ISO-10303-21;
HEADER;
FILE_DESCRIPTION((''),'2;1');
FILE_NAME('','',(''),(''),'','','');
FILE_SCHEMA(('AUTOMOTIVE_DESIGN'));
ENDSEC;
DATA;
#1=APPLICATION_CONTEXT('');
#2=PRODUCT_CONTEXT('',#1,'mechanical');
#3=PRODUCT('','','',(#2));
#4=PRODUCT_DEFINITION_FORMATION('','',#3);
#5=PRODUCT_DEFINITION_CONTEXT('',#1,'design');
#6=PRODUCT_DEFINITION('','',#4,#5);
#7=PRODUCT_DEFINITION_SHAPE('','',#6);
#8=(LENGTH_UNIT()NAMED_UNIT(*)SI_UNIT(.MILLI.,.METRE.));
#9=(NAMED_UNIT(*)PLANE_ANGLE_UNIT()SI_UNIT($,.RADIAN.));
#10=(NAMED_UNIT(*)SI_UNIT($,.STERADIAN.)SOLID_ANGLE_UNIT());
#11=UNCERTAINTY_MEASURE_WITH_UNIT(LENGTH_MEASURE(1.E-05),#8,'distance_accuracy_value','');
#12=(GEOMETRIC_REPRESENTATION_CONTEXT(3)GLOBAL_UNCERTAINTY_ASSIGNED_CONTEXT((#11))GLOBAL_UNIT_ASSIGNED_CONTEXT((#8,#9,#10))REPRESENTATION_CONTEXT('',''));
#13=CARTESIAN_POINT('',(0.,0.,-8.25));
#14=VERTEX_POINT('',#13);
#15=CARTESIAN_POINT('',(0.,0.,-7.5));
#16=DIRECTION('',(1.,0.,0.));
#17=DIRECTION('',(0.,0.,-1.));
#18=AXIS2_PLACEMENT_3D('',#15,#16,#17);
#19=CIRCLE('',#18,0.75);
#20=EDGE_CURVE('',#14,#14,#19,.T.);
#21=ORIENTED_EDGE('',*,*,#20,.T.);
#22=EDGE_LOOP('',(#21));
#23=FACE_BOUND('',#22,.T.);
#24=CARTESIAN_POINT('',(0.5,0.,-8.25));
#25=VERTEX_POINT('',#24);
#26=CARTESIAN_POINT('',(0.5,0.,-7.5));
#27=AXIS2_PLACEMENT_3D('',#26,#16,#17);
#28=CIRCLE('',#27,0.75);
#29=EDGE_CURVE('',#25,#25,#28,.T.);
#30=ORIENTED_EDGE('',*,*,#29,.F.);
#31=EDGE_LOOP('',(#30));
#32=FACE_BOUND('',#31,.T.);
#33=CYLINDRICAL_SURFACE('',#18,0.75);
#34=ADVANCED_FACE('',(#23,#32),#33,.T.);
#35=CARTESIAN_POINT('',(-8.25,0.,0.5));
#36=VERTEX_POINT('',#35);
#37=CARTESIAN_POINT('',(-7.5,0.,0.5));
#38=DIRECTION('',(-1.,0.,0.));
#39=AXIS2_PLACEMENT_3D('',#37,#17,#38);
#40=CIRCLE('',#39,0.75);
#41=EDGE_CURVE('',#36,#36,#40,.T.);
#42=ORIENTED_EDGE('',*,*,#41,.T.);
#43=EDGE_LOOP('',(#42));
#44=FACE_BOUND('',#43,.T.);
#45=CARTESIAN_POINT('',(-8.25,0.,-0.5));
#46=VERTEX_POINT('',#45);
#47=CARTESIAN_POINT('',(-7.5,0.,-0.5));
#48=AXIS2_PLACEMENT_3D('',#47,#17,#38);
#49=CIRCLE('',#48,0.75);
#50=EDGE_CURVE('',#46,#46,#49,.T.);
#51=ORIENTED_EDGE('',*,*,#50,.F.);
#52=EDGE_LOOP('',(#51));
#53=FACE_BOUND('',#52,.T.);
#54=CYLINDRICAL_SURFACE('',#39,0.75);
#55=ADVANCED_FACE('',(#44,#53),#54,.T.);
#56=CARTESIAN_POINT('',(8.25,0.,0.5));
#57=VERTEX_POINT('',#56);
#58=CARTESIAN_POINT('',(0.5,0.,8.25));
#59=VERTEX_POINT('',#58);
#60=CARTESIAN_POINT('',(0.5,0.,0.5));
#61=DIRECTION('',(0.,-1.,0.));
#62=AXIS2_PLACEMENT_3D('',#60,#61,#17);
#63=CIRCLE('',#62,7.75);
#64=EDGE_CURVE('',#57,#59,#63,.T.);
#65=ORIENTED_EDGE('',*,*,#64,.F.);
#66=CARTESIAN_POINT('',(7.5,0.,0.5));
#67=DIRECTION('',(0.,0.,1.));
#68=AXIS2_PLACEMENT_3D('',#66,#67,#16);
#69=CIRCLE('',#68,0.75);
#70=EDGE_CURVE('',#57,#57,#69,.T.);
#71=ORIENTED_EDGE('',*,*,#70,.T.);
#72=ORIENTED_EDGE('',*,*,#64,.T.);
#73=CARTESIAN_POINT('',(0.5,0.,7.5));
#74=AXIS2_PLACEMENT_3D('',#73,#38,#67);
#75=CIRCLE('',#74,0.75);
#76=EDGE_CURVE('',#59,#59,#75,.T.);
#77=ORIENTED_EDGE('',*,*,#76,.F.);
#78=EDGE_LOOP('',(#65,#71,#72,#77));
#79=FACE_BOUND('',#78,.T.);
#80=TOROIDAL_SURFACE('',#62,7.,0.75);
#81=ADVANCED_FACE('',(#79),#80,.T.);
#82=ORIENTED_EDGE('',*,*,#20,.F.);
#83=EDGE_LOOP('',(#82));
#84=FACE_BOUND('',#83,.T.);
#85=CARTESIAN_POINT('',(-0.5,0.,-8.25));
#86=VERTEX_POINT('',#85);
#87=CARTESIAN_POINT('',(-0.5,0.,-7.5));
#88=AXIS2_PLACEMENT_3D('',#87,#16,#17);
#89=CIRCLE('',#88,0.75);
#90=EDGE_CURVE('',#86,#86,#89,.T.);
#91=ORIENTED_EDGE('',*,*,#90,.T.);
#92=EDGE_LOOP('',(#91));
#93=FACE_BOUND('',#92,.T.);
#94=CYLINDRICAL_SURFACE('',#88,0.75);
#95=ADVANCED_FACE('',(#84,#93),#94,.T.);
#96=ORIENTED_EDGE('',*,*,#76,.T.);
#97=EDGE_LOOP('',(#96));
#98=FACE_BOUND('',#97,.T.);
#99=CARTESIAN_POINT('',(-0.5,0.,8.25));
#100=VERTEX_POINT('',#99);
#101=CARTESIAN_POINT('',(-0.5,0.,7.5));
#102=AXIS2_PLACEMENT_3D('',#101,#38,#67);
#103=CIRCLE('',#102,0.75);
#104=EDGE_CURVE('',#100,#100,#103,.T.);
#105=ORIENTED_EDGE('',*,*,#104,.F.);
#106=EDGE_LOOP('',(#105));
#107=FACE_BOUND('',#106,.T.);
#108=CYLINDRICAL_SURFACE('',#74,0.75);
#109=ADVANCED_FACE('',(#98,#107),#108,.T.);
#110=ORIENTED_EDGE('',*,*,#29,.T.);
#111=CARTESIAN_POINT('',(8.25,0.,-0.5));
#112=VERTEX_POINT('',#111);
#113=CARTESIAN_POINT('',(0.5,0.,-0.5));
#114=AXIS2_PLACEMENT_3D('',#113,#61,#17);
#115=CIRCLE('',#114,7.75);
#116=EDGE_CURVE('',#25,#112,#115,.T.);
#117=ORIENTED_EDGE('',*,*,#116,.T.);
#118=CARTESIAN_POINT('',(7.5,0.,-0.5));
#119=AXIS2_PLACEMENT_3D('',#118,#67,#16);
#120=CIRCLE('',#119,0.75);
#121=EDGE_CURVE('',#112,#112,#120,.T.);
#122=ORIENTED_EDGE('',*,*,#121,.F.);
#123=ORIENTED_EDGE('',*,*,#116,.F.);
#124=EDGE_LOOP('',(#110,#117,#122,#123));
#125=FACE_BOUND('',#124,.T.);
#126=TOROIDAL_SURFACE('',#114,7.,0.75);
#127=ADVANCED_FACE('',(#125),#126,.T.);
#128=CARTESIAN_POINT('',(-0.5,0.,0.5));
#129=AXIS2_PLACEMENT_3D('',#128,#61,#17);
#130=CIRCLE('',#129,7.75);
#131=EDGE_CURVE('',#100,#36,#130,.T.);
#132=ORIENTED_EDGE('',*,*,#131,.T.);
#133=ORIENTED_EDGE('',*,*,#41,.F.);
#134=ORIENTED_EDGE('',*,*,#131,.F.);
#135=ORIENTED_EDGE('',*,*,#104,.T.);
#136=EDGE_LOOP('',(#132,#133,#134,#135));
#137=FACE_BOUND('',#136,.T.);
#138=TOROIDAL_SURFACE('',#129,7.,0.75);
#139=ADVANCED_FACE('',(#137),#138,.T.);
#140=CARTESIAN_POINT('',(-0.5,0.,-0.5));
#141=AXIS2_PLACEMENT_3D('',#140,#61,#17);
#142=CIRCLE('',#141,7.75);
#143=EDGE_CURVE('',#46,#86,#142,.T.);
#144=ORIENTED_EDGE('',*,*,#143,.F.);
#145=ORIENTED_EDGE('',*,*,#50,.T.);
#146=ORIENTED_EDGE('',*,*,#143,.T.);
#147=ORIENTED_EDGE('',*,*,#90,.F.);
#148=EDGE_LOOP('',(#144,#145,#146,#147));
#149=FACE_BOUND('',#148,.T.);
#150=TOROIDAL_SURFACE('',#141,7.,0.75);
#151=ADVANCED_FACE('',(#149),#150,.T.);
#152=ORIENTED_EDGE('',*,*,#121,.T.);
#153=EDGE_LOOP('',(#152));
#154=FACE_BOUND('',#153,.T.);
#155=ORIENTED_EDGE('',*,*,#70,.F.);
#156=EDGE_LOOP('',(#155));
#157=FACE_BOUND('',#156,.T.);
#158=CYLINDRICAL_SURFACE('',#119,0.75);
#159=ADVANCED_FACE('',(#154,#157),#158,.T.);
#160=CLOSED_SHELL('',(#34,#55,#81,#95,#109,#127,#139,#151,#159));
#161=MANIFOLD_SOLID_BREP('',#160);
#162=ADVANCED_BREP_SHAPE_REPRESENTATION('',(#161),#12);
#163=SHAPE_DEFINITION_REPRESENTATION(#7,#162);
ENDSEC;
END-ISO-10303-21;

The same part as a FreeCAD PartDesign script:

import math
import FreeCAD as App
import Part
import Sketcher
Q = App.Units.Quantity

doc = App.newDocument("Part")
params = doc.addObject("Spreadsheet::Sheet", "Params")
for row, (alias, value) in enumerate([
    ("sketch1_diameter", "1.5 mm"),
    ("sketch2_radius", "7 mm"),
    ("sketch2_width", "1 mm"),
], start=1):
    params.set(f"A{row}", alias)
    params.set(f"B{row}", "=" + value)
    params.setAlias(f"B{row}", alias)

body = doc.addObject("PartDesign::Body", "Body")

sketch1 = body.newObject("Sketcher::SketchObject", "Sketch")
sketch1.AttachmentSupport = (doc.getObject("YZ_Plane"), [""])
sketch1.MapMode = "FlatFace"
sketch1.addGeometry(Part.Circle(App.Vector(0, -7.5, 0), App.Vector(0, 0, 1), 0.8), False)
sketch1.addConstraint(Sketcher.Constraint("PointOnObject", 0, 3, -2))
sketch1.addConstraint(Sketcher.Constraint("Diameter", 0, Q("1.5 mm")))
sketch1.addConstraint(Sketcher.Constraint("DistanceY", 0, 3, -1, 1, Q("7.5 mm")))
sketch1.setExpression("Constraints[1]", "Params.sketch1_diameter")

sketch2 = body.newObject("Sketcher::SketchObject", "Sketch001")
sketch2.AttachmentSupport = (doc.getObject("XZ_Plane"), [""])
sketch2.MapMode = "FlatFace"
sketch2.addGeometry(Part.LineSegment(App.Vector(-0.5, 7.5, 0), App.Vector(0.5, 7.5, 0)), False)
sketch2.addGeometry(Part.ArcOfCircle(Part.Circle(App.Vector(0.5, 0.5, 0), App.Vector(0, 0, 1), 7), math.radians(0), math.radians(90)), False)
sketch2.addGeometry(Part.LineSegment(App.Vector(7.5, 0.5, 0), App.Vector(7.5, -0.5, 0)), False)
sketch2.addGeometry(Part.ArcOfCircle(Part.Circle(App.Vector(0.5, -0.5, 0), App.Vector(0, 0, 1), 7), math.radians(-90), math.radians(0)), False)
sketch2.addGeometry(Part.LineSegment(App.Vector(0.5, -7.5, 0), App.Vector(-0.5, -7.5, 0)), False)
sketch2.addGeometry(Part.ArcOfCircle(Part.Circle(App.Vector(-0.5, -0.5, 0), App.Vector(0, 0, 1), 7), math.radians(-180), math.radians(-90)), False)
sketch2.addGeometry(Part.LineSegment(App.Vector(-7.5, -0.5, 0), App.Vector(-7.5, 0.5, 0)), False)
sketch2.addGeometry(Part.ArcOfCircle(Part.Circle(App.Vector(-0.5, 0.5, 0), App.Vector(0, 0, 1), 7), math.radians(90), math.radians(180)), False)
sketch2.addConstraint(Sketcher.Constraint("Tangent", 0, 2, 1, 2))
sketch2.addConstraint(Sketcher.Constraint("Tangent", 1, 1, 2, 1))
sketch2.addConstraint(Sketcher.Constraint("Tangent", 2, 2, 3, 2))
sketch2.addConstraint(Sketcher.Constraint("Tangent", 3, 1, 4, 1))
sketch2.addConstraint(Sketcher.Constraint("Tangent", 4, 2, 5, 2))
sketch2.addConstraint(Sketcher.Constraint("Tangent", 5, 1, 6, 1))
sketch2.addConstraint(Sketcher.Constraint("Tangent", 6, 2, 7, 2))
sketch2.addConstraint(Sketcher.Constraint("Tangent", 7, 1, 0, 1))
sketch2.addConstraint(Sketcher.Constraint("Horizontal", 0))
sketch2.addConstraint(Sketcher.Constraint("Vertical", 2))
sketch2.addConstraint(Sketcher.Constraint("Horizontal", 4))
sketch2.addConstraint(Sketcher.Constraint("Vertical", 6))
sketch2.addConstraint(Sketcher.Constraint("Equal", 1, 3))
sketch2.addConstraint(Sketcher.Constraint("Equal", 3, 5))
sketch2.addConstraint(Sketcher.Constraint("Equal", 5, 7))
sketch2.addConstraint(Sketcher.Constraint("Symmetric", 1, 3, 5, 3, -1, 1))
sketch2.addConstraint(Sketcher.Constraint("Equal", 4, 2))
sketch2.addConstraint(Sketcher.Constraint("Radius", 1, Q("7 mm")))
sketch2.addConstraint(Sketcher.Constraint("DistanceX", 0, 1, 0, 2, Q("1 mm")))
sketch2.setExpression("Constraints[17]", "Params.sketch2_radius")
sketch2.setExpression("Constraints[18]", "Params.sketch2_width")
doc.recompute()

additivepipe = body.newObject("PartDesign::AdditivePipe", "AdditivePipe")
additivepipe.Profile = sketch1
additivepipe.Spine = (sketch2, ["Edge1", "Edge2", "Edge3", "Edge4", "Edge5", "Edge6", "Edge7", "Edge8"])

doc.recompute()
